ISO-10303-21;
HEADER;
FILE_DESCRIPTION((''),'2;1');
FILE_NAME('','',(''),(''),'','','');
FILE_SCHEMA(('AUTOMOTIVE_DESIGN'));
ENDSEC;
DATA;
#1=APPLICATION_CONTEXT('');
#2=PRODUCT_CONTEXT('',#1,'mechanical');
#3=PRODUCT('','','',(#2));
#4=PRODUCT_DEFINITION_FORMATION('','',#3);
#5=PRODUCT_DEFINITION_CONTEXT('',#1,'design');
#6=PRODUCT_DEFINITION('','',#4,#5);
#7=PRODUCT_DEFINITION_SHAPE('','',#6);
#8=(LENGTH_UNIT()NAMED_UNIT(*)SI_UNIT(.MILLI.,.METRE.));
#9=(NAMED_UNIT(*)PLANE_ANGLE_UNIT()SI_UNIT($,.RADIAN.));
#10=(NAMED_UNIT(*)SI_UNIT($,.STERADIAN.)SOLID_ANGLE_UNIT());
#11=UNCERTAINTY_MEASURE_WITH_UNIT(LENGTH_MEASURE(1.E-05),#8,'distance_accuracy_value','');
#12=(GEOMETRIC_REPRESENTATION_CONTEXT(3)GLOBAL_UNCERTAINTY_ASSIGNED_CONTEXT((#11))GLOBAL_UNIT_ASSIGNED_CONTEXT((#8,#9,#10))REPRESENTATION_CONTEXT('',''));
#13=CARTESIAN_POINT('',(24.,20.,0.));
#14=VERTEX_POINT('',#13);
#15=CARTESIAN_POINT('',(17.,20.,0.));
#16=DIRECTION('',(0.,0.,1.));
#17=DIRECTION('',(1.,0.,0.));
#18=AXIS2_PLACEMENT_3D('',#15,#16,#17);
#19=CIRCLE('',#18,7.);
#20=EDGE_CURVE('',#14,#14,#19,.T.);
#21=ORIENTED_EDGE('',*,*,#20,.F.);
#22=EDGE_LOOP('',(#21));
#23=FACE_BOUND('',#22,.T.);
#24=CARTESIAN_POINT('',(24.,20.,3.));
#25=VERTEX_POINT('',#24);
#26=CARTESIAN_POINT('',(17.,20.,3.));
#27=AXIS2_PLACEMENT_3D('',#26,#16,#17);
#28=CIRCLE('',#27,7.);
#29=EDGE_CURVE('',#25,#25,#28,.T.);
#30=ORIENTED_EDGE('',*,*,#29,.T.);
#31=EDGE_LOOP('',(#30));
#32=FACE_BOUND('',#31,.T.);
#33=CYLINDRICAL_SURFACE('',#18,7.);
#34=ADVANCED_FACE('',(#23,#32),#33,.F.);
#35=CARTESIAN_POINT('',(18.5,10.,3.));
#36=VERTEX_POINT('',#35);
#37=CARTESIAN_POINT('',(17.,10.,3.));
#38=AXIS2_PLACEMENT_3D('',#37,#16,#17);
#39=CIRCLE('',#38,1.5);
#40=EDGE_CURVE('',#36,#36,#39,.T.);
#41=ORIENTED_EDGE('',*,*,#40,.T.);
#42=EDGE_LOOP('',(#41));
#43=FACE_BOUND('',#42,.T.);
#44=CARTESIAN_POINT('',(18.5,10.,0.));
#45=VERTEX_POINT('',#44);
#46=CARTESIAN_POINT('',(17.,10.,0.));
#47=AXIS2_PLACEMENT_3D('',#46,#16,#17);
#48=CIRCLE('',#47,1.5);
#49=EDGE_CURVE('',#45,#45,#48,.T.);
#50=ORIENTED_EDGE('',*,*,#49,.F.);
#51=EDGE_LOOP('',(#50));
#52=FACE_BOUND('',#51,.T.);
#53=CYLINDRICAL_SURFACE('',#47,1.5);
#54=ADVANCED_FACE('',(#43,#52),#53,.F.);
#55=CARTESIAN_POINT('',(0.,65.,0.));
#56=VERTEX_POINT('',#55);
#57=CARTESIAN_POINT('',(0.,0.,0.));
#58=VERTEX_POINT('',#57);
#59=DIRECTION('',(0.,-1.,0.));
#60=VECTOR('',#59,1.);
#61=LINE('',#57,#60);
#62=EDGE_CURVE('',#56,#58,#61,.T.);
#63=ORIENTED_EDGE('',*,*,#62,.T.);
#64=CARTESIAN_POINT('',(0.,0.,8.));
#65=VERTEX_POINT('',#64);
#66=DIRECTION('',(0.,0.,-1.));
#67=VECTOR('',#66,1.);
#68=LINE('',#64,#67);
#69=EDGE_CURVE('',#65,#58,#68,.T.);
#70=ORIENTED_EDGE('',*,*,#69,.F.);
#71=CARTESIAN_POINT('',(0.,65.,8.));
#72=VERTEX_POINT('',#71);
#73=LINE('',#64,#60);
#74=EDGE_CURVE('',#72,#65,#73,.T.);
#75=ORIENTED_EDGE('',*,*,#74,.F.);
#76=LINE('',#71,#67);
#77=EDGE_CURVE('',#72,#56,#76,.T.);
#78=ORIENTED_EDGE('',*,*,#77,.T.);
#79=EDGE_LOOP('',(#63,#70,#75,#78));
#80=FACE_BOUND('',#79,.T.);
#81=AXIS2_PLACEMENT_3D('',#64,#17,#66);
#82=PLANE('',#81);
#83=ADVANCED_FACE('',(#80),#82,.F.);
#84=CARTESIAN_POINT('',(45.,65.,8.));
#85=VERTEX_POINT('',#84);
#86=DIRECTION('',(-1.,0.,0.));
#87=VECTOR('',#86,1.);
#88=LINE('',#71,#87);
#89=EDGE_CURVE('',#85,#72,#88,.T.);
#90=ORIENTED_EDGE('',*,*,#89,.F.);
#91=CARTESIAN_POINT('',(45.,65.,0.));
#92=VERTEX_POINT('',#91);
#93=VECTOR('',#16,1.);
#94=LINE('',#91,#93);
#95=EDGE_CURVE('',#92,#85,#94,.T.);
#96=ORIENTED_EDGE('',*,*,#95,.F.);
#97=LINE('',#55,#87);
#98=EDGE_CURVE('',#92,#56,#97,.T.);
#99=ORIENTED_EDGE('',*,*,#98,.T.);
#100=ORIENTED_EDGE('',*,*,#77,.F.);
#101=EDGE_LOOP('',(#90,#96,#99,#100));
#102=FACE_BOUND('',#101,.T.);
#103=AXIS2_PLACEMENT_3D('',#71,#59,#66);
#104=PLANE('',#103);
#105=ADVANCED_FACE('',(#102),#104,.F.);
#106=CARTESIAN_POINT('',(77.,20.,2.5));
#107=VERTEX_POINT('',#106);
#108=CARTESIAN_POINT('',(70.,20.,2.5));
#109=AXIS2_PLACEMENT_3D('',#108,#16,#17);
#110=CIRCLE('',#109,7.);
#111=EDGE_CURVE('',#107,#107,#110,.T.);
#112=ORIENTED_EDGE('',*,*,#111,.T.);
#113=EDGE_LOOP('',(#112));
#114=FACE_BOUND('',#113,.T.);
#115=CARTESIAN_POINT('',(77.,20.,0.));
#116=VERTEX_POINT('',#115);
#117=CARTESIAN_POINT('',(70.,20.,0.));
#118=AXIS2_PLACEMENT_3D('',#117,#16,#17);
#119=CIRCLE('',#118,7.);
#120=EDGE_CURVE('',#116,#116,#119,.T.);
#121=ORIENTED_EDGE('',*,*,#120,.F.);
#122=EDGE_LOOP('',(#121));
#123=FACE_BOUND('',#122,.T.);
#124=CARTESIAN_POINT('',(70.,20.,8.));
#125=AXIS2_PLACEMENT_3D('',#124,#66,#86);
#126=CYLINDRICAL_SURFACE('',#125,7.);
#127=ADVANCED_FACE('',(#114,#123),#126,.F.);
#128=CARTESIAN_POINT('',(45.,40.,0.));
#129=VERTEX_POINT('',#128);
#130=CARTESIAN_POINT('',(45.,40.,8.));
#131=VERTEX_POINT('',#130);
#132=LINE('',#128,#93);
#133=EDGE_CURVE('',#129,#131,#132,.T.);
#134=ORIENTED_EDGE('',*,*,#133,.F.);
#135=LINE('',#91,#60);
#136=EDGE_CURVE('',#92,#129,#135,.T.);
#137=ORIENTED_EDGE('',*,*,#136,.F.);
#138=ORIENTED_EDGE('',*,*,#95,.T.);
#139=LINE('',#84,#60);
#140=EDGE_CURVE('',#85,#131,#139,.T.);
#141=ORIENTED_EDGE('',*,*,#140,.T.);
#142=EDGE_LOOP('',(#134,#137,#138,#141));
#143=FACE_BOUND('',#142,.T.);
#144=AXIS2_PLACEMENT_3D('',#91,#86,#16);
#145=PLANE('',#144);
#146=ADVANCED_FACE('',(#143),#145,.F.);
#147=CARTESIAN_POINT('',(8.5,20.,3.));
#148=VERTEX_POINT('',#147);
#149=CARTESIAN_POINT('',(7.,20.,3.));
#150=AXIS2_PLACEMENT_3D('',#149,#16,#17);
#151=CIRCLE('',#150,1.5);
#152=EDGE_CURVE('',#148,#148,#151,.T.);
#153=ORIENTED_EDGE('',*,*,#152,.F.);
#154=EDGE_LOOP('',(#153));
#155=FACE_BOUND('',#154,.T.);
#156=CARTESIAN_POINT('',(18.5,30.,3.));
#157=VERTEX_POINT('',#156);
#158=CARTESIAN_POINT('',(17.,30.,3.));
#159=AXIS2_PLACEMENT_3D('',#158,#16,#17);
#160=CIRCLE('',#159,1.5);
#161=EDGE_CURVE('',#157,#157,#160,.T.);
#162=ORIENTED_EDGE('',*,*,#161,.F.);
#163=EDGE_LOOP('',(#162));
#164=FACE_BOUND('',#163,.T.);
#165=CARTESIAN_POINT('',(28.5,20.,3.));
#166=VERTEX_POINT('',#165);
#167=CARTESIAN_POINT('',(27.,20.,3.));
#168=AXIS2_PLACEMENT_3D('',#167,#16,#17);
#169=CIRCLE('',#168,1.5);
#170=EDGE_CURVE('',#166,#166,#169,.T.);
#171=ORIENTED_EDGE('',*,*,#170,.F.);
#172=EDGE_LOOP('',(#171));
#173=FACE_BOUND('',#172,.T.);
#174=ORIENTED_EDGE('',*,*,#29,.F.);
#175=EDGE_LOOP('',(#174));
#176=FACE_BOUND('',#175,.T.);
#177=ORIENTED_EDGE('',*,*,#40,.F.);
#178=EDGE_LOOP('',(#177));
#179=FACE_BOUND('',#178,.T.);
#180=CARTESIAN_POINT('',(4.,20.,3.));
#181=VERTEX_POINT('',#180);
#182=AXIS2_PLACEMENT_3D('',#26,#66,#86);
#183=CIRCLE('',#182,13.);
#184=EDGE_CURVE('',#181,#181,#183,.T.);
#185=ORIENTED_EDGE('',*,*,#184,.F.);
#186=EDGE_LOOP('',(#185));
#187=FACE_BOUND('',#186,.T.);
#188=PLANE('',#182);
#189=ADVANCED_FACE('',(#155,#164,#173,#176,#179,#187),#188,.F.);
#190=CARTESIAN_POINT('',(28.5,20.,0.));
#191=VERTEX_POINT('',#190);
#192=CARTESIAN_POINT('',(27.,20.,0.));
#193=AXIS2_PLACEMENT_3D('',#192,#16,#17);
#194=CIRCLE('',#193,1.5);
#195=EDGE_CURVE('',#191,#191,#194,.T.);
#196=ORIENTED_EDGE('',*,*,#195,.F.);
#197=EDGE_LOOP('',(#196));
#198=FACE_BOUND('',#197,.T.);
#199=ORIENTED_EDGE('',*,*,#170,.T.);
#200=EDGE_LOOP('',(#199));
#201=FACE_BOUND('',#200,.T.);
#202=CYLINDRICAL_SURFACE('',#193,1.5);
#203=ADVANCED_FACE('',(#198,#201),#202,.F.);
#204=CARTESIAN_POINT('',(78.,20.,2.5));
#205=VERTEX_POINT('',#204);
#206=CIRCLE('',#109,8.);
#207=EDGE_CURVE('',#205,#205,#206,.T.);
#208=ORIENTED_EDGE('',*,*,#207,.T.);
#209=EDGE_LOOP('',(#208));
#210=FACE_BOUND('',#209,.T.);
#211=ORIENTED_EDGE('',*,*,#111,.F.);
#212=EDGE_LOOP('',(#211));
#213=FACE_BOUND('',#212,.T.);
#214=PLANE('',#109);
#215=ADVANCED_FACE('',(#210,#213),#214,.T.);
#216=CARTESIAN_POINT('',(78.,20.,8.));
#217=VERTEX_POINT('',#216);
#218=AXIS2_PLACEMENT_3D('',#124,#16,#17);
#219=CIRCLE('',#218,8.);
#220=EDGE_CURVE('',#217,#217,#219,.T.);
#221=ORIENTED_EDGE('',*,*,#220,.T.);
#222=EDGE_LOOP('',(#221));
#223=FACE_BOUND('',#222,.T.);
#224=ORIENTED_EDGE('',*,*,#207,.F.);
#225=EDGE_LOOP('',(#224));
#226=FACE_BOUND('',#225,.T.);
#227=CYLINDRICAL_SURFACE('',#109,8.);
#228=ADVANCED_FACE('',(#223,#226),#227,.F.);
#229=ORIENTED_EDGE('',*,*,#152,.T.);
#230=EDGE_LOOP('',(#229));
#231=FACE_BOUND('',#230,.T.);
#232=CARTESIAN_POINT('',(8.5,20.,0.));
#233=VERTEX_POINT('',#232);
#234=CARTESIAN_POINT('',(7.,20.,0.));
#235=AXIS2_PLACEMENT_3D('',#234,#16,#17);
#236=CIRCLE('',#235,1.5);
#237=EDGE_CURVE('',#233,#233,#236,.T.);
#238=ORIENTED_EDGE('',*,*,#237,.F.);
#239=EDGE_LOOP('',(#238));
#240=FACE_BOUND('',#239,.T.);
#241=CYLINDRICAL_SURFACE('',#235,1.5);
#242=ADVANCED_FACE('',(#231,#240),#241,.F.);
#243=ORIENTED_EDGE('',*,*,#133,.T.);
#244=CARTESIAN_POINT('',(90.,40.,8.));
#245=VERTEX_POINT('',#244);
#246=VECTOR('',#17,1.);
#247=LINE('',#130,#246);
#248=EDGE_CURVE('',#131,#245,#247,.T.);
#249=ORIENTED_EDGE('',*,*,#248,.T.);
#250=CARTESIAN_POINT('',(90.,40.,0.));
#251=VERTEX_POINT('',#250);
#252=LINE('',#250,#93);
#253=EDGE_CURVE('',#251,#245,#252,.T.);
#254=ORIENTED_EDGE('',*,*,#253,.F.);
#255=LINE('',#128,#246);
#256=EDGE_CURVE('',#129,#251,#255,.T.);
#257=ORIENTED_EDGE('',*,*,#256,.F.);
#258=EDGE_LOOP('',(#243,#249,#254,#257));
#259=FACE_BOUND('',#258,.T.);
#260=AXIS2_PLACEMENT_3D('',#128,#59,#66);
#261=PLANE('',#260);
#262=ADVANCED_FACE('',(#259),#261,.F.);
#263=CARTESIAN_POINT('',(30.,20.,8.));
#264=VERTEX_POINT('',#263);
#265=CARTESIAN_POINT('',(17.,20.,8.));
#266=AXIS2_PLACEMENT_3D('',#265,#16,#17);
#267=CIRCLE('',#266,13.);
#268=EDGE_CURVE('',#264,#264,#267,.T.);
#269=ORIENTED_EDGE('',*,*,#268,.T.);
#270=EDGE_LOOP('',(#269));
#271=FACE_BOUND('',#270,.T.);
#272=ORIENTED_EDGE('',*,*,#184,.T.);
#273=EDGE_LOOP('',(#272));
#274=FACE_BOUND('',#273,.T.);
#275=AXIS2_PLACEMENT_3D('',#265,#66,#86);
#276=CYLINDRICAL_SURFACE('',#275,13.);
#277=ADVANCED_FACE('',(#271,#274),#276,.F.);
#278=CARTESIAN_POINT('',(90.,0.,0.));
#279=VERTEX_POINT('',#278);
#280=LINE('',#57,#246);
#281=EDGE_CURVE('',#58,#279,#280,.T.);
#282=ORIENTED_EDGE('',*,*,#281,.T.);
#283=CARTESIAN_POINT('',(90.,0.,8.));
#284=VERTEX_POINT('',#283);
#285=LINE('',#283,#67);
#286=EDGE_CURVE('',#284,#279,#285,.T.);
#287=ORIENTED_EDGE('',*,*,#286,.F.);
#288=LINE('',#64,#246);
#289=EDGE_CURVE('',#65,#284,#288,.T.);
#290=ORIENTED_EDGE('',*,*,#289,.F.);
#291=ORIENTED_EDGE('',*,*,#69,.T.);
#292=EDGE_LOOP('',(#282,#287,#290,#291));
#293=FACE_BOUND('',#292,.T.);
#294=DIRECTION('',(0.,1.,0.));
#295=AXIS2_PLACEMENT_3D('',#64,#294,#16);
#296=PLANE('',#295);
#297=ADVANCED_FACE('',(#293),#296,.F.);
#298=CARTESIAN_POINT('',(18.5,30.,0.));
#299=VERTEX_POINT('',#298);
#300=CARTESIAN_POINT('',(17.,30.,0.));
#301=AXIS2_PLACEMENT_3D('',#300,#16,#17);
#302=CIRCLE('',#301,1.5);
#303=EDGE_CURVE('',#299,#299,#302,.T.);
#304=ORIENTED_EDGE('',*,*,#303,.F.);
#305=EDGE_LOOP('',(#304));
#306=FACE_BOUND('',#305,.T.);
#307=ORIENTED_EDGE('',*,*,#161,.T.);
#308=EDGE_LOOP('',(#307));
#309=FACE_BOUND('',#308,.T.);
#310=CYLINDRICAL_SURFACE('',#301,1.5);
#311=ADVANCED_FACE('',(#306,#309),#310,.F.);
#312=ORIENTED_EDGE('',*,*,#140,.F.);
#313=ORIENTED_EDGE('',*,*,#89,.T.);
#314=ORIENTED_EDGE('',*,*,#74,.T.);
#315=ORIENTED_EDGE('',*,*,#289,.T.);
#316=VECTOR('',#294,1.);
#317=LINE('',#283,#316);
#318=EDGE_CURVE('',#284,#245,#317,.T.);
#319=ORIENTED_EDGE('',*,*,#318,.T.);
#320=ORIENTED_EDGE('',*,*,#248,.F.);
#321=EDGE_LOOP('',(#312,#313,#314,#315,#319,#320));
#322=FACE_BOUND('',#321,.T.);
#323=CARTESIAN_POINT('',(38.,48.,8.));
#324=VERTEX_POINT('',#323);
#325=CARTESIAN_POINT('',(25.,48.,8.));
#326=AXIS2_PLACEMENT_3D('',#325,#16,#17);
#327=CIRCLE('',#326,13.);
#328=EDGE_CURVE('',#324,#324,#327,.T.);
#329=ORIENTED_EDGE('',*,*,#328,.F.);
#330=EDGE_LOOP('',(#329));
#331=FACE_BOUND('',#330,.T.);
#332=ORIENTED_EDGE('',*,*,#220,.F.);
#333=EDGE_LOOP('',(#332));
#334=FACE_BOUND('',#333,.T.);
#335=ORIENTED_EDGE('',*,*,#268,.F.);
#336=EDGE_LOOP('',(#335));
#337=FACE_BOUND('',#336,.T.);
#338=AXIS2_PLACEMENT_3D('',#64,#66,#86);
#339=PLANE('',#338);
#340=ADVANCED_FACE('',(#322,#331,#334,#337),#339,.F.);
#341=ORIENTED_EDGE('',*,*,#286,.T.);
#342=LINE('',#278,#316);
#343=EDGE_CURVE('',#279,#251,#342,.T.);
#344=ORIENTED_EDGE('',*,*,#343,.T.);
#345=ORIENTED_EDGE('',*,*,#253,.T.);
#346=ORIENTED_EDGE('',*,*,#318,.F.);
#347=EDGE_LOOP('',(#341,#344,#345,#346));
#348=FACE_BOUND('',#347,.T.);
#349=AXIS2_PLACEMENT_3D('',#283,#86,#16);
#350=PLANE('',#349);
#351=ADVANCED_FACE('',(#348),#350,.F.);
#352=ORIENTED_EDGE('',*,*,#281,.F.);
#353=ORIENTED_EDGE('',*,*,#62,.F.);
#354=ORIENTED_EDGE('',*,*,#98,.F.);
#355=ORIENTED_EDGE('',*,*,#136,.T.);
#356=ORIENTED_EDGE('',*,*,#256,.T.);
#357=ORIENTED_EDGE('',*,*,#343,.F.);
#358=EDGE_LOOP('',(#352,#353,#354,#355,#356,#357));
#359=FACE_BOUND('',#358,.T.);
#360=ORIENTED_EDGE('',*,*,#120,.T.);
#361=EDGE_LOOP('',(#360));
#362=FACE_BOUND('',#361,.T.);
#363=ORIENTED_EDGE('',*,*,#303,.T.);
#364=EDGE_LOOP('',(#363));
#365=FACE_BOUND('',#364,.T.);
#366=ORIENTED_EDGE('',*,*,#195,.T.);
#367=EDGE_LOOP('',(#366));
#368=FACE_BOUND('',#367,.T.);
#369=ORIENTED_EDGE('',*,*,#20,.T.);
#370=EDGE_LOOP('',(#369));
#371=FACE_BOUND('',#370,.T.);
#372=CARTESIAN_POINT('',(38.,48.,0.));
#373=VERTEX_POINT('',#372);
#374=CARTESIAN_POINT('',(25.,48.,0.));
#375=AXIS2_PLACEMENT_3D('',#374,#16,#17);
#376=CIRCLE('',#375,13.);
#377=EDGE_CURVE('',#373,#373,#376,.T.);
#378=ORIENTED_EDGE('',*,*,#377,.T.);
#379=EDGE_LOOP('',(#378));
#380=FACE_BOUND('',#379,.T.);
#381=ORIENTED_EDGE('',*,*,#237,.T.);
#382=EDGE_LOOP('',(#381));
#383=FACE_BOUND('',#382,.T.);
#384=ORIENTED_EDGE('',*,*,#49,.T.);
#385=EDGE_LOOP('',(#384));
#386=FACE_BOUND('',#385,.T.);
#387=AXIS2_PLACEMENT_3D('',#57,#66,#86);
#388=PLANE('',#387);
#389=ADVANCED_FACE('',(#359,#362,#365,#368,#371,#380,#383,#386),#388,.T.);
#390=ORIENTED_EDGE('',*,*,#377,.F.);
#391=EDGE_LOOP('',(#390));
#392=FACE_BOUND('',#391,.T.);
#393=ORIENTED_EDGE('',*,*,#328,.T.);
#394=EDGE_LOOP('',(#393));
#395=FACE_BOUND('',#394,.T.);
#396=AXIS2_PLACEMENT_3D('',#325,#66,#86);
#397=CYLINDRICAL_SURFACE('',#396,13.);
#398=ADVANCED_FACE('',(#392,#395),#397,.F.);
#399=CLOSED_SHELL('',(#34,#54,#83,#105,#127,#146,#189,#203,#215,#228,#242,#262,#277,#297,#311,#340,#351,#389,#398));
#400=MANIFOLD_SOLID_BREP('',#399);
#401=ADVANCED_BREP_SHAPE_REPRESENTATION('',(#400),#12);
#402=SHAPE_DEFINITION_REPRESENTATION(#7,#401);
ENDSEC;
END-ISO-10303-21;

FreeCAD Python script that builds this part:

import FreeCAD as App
import Part
import Sketcher

V = App.Vector
Q = App.Units.Quantity


def add_polygon(sketch, points):
    """Adds a closed chain of lines whose ends are joined by coincident constraints."""
    first, n = sketch.GeometryCount, len(points)
    for a, b in zip(points, points[1:] + points[:1]):
        sketch.addGeometry(Part.LineSegment(App.Vector(*a, 0), App.Vector(*b, 0)), False)
    for i in range(n):
        sketch.addConstraint(Sketcher.Constraint("Coincident", first + i, 2, first + (i + 1) % n, 1))

doc = App.newDocument("Part")
body = doc.addObject("PartDesign::Body", "Body")

# Sketch on XY plane
sketch1 = body.newObject("Sketcher::SketchObject", "Sketch")
sketch1.AttachmentSupport = (doc.getObject("XY_Plane"), [""])
sketch1.MapMode = "FlatFace"
add_polygon(sketch1, [(0, 65), (0, 0), (90, 0), (90, 65)])  # lines 0-3
sketch1.addGeometry(Part.Circle(V(17, 20, 0), V(0, 0, 1), 13), False)  # 4
sketch1.addGeometry(Part.Circle(V(70, 20, 0), V(0, 0, 1), 7), False)  # 5
sketch1.addGeometry(Part.Circle(V(25, 48, 0), V(0, 0, 1), 13), False)  # 6
sketch1.addConstraint([
    Sketcher.Constraint("Vertical", 0),
    Sketcher.Constraint("Horizontal", 1),
    Sketcher.Constraint("Vertical", 2),
    Sketcher.Constraint("Horizontal", 3),
    Sketcher.Constraint("Coincident", 0, 2, -1, 1),
    Sketcher.Constraint("Equal", 4, 6),
    Sketcher.Constraint("Horizontal", 4, 3, 5, 3),
    Sketcher.Constraint("Diameter", 4, Q("26 mm")),
    Sketcher.Constraint("Diameter", 5, Q("14 mm")),
    Sketcher.Constraint("DistanceX", 1, 1, 1, 2, Q("90 mm")),
    Sketcher.Constraint("DistanceY", 0, 2, 0, 1, Q("65 mm")),
    Sketcher.Constraint("DistanceX", -1, 1, 4, 3, Q("17 mm")),
    Sketcher.Constraint("DistanceY", -1, 1, 4, 3, Q("20 mm")),
    Sketcher.Constraint("DistanceX", -1, 1, 5, 3, Q("70 mm")),
    Sketcher.Constraint("DistanceX", -1, 1, 6, 3, Q("25 mm")),
    Sketcher.Constraint("DistanceY", -1, 1, 6, 3, Q("48 mm")),
])
pad1 = body.newObject("PartDesign::Pad", "Pad")
pad1.Profile = sketch1
pad1.Length = 8

# Sketch on XY plane
sketch2 = body.newObject("Sketcher::SketchObject", "Sketch001")
sketch2.AttachmentSupport = (doc.getObject("XY_Plane"), [""])
sketch2.MapMode = "FlatFace"
sketch2.addGeometry(Part.Circle(V(17, 20, 0), V(0, 0, 1), 13), False)
sketch2.addConstraint([
    Sketcher.Constraint("Diameter", 0, Q("26 mm")),
    Sketcher.Constraint("DistanceX", -1, 1, 0, 3, Q("17 mm")),
    Sketcher.Constraint("DistanceY", -1, 1, 0, 3, Q("20 mm")),
])
pad2 = body.newObject("PartDesign::Pad", "Pad001")
pad2.Profile = sketch2
pad2.Length = 3

# Sketch on XY plane
sketch3 = body.newObject("Sketcher::SketchObject", "Sketch002")
sketch3.AttachmentSupport = (doc.getObject("XY_Plane"), [""])
sketch3.MapMode = "FlatFace"
sketch3.AttachmentOffset = App.Placement(V(0, 0, 3), App.Rotation())
sketch3.addGeometry([
    Part.Circle(V(17, 20, 0), V(0, 0, 1), 7),  # 0
    Part.Circle(V(27, 20, 0), V(0, 0, 1), 1.5),  # 1
    Part.Circle(V(17, 10, 0), V(0, 0, 1), 1.5),  # 2
    Part.Circle(V(7, 20, 0), V(0, 0, 1), 1.5),  # 3
    Part.Circle(V(17, 30, 0), V(0, 0, 1), 1.5),  # 4
], False)
sketch3.addConstraint([
    Sketcher.Constraint("Equal", 1, 2),
    Sketcher.Constraint("Equal", 2, 3),
    Sketcher.Constraint("Equal", 3, 4),
    Sketcher.Constraint("Horizontal", 0, 3, 1, 3),
    Sketcher.Constraint("Horizontal", 1, 3, 3, 3),
    Sketcher.Constraint("Vertical", 0, 3, 2, 3),
    Sketcher.Constraint("Vertical", 2, 3, 4, 3),
    Sketcher.Constraint("Diameter", 0, Q("14 mm")),
    Sketcher.Constraint("Diameter", 1, Q("3 mm")),
    Sketcher.Constraint("DistanceX", -1, 1, 0, 3, Q("17 mm")),
    Sketcher.Constraint("DistanceY", -1, 1, 0, 3, Q("20 mm")),
    Sketcher.Constraint("DistanceX", -1, 1, 1, 3, Q("27 mm")),
    Sketcher.Constraint("DistanceY", -1, 1, 2, 3, Q("10 mm")),
    Sketcher.Constraint("DistanceX", -1, 1, 3, 3, Q("7 mm")),
    Sketcher.Constraint("DistanceY", -1, 1, 4, 3, Q("30 mm")),
])
pocket1 = body.newObject("PartDesign::Pocket", "Pocket")
pocket1.Profile = sketch3
pocket1.Type = "ThroughAll"

# Sketch on XY plane
sketch4 = body.newObject("Sketcher::SketchObject", "Sketch003")
sketch4.AttachmentSupport = (doc.getObject("XY_Plane"), [""])
sketch4.MapMode = "FlatFace"
sketch4.AttachmentOffset = App.Placement(V(0, 0, 8), App.Rotation())
sketch4.addGeometry(Part.Circle(V(70, 20, 0), V(0, 0, 1), 8), False)
sketch4.addConstraint([
    Sketcher.Constraint("Diameter", 0, Q("16 mm")),
    Sketcher.Constraint("DistanceX", -1, 1, 0, 3, Q("70 mm")),
    Sketcher.Constraint("DistanceY", -1, 1, 0, 3, Q("20 mm")),
])
pocket2 = body.newObject("PartDesign::Pocket", "Pocket001")
pocket2.Profile = sketch4
pocket2.Length = 5.5

# Sketch on XY plane
sketch5 = body.newObject("Sketcher::SketchObject", "Sketch004")
sketch5.AttachmentSupport = (doc.getObject("XY_Plane"), [""])
sketch5.MapMode = "FlatFace"
sketch5.AttachmentOffset = App.Placement(V(0, 0, 8), App.Rotation())
add_polygon(sketch5, [(45, 65), (45, 40), (90, 40), (90, 65)])  # lines 0-3
sketch5.addConstraint([
    Sketcher.Constraint("Vertical", 0),
    Sketcher.Constraint("Horizontal", 1),
    Sketcher.Constraint("Vertical", 2),
    Sketcher.Constraint("Horizontal", 3),
    Sketcher.Constraint("DistanceX", 1, 1, 1, 2, Q("45 mm")),
    Sketcher.Constraint("DistanceY", 0, 2, 0, 1, Q("25 mm")),
    Sketcher.Constraint("DistanceX", -1, 1, 0, 2, Q("45 mm")),
    Sketcher.Constraint("DistanceY", -1, 1, 0, 2, Q("40 mm")),
])
pocket3 = body.newObject("PartDesign::Pocket", "Pocket002")
pocket3.Profile = sketch5
pocket3.Type = "ThroughAll"

doc.recompute()
